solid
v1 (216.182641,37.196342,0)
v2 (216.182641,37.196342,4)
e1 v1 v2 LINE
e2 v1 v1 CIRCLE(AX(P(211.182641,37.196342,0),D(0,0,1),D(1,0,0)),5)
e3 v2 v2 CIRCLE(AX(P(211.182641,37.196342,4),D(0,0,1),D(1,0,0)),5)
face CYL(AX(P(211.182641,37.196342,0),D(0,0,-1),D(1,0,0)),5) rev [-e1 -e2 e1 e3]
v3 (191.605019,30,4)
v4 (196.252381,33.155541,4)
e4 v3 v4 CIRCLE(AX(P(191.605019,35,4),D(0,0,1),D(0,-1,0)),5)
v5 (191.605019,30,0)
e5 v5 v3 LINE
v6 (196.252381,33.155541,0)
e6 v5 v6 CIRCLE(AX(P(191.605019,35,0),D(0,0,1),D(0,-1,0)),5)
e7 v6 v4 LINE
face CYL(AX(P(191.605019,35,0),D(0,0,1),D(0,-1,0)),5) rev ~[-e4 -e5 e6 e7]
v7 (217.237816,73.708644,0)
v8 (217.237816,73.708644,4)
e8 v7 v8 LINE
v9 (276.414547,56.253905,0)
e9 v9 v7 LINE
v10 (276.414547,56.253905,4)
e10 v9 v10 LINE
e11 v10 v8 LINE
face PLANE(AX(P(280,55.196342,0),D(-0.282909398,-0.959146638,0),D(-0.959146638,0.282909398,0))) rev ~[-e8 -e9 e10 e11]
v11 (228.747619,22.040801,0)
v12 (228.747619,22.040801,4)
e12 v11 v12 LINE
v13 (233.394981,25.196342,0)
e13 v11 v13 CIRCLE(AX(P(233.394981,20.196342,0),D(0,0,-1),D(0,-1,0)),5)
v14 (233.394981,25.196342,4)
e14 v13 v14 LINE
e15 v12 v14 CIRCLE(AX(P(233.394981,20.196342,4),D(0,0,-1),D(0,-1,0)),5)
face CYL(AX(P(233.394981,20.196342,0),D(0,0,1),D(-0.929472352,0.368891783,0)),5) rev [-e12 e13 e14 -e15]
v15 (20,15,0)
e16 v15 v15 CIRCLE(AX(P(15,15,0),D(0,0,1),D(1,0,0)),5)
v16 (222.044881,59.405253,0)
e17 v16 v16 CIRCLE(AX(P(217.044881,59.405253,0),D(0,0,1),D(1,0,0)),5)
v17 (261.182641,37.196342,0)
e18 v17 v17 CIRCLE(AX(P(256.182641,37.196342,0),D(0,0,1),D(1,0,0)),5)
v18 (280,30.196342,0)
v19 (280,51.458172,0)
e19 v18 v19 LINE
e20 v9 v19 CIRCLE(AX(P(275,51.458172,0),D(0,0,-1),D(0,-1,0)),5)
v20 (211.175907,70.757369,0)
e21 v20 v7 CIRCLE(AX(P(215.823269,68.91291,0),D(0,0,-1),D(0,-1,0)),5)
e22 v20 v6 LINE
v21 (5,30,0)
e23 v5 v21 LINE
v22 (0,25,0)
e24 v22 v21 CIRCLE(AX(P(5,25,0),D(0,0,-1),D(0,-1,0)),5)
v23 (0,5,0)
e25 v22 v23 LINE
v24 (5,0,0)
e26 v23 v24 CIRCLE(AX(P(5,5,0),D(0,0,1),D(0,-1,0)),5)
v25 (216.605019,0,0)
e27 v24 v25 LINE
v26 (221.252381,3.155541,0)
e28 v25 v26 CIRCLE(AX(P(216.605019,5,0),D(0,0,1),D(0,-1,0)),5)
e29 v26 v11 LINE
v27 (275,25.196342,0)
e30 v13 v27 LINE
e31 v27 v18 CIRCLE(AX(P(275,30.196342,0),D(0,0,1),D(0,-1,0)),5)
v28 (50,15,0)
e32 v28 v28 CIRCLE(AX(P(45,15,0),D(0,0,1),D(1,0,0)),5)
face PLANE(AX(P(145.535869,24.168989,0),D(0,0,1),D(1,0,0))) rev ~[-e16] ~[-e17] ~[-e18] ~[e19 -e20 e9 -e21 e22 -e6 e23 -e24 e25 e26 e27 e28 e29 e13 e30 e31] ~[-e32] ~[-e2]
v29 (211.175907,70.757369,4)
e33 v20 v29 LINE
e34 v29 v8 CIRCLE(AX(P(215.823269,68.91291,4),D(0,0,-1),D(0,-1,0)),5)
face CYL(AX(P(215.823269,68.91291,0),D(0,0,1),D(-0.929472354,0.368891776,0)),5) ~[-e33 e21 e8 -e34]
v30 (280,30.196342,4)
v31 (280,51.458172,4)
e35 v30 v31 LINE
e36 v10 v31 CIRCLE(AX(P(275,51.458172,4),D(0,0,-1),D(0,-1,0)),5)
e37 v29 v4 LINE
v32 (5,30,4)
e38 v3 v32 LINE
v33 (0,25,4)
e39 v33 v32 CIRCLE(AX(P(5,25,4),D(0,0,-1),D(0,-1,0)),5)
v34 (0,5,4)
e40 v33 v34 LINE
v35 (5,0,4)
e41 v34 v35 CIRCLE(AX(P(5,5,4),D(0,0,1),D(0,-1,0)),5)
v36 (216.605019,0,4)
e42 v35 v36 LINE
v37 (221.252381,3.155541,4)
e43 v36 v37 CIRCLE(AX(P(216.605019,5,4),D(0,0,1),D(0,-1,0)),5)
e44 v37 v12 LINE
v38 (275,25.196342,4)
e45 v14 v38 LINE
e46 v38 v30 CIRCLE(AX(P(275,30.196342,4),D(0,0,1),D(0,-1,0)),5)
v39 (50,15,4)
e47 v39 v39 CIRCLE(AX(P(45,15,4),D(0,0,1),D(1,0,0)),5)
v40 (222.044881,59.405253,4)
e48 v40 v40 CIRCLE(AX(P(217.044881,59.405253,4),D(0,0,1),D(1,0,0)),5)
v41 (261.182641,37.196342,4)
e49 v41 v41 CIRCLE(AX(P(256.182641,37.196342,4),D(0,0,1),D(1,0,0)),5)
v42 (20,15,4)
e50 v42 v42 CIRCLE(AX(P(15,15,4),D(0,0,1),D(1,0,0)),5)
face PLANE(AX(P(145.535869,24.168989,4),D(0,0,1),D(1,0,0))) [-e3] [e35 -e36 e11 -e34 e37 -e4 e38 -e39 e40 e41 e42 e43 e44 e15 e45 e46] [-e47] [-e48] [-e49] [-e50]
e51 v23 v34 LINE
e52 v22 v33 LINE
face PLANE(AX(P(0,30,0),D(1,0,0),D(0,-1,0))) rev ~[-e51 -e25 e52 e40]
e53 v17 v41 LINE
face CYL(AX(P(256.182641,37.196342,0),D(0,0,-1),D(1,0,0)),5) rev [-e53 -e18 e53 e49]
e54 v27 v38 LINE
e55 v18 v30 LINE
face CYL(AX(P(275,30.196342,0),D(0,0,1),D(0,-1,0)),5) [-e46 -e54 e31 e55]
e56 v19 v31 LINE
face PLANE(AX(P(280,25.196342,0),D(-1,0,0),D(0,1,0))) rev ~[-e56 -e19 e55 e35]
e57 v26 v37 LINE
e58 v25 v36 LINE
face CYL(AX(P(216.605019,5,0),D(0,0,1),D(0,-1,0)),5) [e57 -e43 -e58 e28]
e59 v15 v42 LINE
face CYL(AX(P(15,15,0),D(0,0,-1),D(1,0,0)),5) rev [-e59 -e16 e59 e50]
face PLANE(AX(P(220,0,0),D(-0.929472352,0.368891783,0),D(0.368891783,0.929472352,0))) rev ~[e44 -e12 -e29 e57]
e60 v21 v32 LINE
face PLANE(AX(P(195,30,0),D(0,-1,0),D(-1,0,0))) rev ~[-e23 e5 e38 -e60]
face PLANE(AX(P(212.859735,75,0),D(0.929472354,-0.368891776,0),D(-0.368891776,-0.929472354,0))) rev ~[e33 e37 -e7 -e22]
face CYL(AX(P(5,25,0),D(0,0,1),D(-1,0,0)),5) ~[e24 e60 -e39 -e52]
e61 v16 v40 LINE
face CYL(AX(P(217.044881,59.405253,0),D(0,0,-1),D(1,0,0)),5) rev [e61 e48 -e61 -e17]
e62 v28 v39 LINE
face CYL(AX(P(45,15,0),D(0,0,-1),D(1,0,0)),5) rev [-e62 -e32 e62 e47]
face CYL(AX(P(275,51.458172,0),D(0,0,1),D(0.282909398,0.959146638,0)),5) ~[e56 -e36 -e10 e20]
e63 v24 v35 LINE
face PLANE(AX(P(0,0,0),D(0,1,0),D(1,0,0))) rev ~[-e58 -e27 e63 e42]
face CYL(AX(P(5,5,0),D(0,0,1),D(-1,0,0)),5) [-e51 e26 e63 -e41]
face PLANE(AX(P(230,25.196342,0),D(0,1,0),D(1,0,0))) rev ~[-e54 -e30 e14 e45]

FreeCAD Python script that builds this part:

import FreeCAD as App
import Part
import Sketcher


def edges_at(feature, points):
    """Names of the edges that pass closest to the given points."""
    edges = feature.Shape.Edges
    near = lambda p: min(range(len(edges)), key=lambda i: edges[i].distToShape(Part.Vertex(*p))[0])
    return sorted({f"Edge{near(p) + 1}" for p in points})


def add_polygon(sketch, points):
    """Adds a closed chain of lines whose ends are joined by coincident constraints."""
    first, n = sketch.GeometryCount, len(points)
    for a, b in zip(points, points[1:] + points[:1]):
        sketch.addGeometry(Part.LineSegment(App.Vector(*a, 0), App.Vector(*b, 0)), False)
    for i in range(n):
        sketch.addConstraint(Sketcher.Constraint("Coincident", first + i, 2, first + (i + 1) % n, 1))

doc = App.newDocument("Part")
params = doc.addObject("Spreadsheet::Sheet", "Params")
for row, (alias, value) in enumerate([
    ("sketch1_diameter", "10 mm"),
    ("sketch1_width", "220 mm"),
    ("sketch1_width2", "50 mm"),
    ("sketch1_width3", "195 mm"),
    ("sketch1_height", "30 mm"),
    ("pad1_length", "4 mm"),
    ("fillet_radius", "5 mm"),
], start=1):
    params.set(f"A{row}", alias)
    params.set(f"B{row}", "=" + value)
    params.setAlias(f"B{row}", alias)

body = doc.addObject("PartDesign::Body", "Body")

sketch1 = body.newObject("Sketcher::SketchObject", "Sketch")
sketch1.AttachmentSupport = (doc.getObject("XY_Plane"), [""])
sketch1.MapMode = "FlatFace"
add_polygon(sketch1, [(0, 30), (0, 0), (220, 0), (230, 25), (280, 25), (280, 55), (213, 75), (195, 30)])
sketch1.addGeometry(Part.Circle(App.Vector(15, 15, 0), App.Vector(0, 0, 1), 5), False)
sketch1.addGeometry(Part.Circle(App.Vector(45, 15, 0), App.Vector(0, 0, 1), 5), False)
sketch1.addGeometry(Part.Circle(App.Vector(211, 37, 0), App.Vector(0, 0, 1), 5), False)
sketch1.addGeometry(Part.Circle(App.Vector(256, 37, 0), App.Vector(0, 0, 1), 5), False)
sketch1.addGeometry(Part.Circle(App.Vector(217, 59, 0), App.Vector(0, 0, 1), 5), False)
sketch1.addConstraint(Sketcher.Constraint("Vertical", 0))
sketch1.addConstraint(Sketcher.Constraint("Horizontal", 1))
sketch1.addConstraint(Sketcher.Constraint("Horizontal", 3))
sketch1.addConstraint(Sketcher.Constraint("Vertical", 4))
sketch1.addConstraint(Sketcher.Constraint("Horizontal", 7))
sketch1.addConstraint(Sketcher.Constraint("Coincident", 0, 2, -1, 1))
sketch1.addConstraint(Sketcher.Constraint("Equal", 8, 9))
sketch1.addConstraint(Sketcher.Constraint("Equal", 9, 10))
sketch1.addConstraint(Sketcher.Constraint("Equal", 10, 11))
sketch1.addConstraint(Sketcher.Constraint("Equal", 11, 12))
sketch1.addConstraint(Sketcher.Constraint("Parallel", 2, 6))
sketch1.addConstraint(Sketcher.Constraint("Horizontal", 8, 3, 9, 3))
sketch1.addConstraint(Sketcher.Constraint("Horizontal", 10, 3, 11, 3))
sketch1.addConstraint(Sketcher.Constraint("Equal", 0, 4))
sketch1.addConstraint(Sketcher.Constraint("Diameter", 8, 10.0))
sketch1.addConstraint(Sketcher.Constraint("DistanceX", 1, 1, 1, 2, 220.0))
sketch1.addConstraint(Sketcher.Constraint("DistanceX", 3, 1, 3, 2, 50.0))
sketch1.addConstraint(Sketcher.Constraint("DistanceX", 7, 2, 7, 1, 195.0))
sketch1.addConstraint(Sketcher.Constraint("DistanceY", 0, 2, 0, 1, 30.0))
sketch1.addConstraint(Sketcher.Constraint("Distance", 5, 70.0))
sketch1.addConstraint(Sketcher.Constraint("DistanceX", -1, 1, 8, 3, 15.0))
sketch1.addConstraint(Sketcher.Constraint("DistanceY", -1, 1, 8, 3, 15.0))
sketch1.addConstraint(Sketcher.Constraint("DistanceX", -1, 1, 9, 3, 45.0))
sketch1.addConstraint(Sketcher.Constraint("DistanceX", -1, 1, 2, 2, 230.0))
sketch1.addConstraint(Sketcher.Constraint("DistanceY", -1, 1, 5, 2, 75.0))
sketch1.addConstraint(Sketcher.Constraint("DistanceX", 10, 3, 11, 3, 45.0))
sketch1.addConstraint(Sketcher.Constraint("DistanceY", 2, 2, 10, 3, 12.0))
sketch1.addConstraint(Sketcher.Constraint("DistanceX", -1, 1, 10, 3, 211.182641))
sketch1.addConstraint(Sketcher.Constraint("DistanceX", -1, 1, 12, 3, 217.044881))
sketch1.addConstraint(Sketcher.Constraint("DistanceY", 10, 3, 12, 3, 22.208911))
sketch1.setExpression("Constraints[22]", "Params.sketch1_diameter")
sketch1.setExpression("Constraints[23]", "Params.sketch1_width")
sketch1.setExpression("Constraints[24]", "Params.sketch1_width2")
sketch1.setExpression("Constraints[25]", "Params.sketch1_width3")
sketch1.setExpression("Constraints[26]", "Params.sketch1_height")
pad1 = body.newObject("PartDesign::Pad", "Pad")
pad1.Profile = sketch1
pad1.setExpression("Length", "Params.pad1_length")
doc.recompute()

fillet = body.newObject("PartDesign::Fillet", "Fillet")
fillet.Base = (pad1, edges_at(pad1, [
    (0, 30, 2),
    (0, 0, 2),
    (220, 0, 2),
    (280, 25.196, 2),
    (280, 55.196, 2),
    (212.86, 75, 2),
    (195, 30, 2),
    (230, 25.196, 2),
]))
fillet.setExpression("Radius", "Params.fillet_radius")

doc.recompute()
